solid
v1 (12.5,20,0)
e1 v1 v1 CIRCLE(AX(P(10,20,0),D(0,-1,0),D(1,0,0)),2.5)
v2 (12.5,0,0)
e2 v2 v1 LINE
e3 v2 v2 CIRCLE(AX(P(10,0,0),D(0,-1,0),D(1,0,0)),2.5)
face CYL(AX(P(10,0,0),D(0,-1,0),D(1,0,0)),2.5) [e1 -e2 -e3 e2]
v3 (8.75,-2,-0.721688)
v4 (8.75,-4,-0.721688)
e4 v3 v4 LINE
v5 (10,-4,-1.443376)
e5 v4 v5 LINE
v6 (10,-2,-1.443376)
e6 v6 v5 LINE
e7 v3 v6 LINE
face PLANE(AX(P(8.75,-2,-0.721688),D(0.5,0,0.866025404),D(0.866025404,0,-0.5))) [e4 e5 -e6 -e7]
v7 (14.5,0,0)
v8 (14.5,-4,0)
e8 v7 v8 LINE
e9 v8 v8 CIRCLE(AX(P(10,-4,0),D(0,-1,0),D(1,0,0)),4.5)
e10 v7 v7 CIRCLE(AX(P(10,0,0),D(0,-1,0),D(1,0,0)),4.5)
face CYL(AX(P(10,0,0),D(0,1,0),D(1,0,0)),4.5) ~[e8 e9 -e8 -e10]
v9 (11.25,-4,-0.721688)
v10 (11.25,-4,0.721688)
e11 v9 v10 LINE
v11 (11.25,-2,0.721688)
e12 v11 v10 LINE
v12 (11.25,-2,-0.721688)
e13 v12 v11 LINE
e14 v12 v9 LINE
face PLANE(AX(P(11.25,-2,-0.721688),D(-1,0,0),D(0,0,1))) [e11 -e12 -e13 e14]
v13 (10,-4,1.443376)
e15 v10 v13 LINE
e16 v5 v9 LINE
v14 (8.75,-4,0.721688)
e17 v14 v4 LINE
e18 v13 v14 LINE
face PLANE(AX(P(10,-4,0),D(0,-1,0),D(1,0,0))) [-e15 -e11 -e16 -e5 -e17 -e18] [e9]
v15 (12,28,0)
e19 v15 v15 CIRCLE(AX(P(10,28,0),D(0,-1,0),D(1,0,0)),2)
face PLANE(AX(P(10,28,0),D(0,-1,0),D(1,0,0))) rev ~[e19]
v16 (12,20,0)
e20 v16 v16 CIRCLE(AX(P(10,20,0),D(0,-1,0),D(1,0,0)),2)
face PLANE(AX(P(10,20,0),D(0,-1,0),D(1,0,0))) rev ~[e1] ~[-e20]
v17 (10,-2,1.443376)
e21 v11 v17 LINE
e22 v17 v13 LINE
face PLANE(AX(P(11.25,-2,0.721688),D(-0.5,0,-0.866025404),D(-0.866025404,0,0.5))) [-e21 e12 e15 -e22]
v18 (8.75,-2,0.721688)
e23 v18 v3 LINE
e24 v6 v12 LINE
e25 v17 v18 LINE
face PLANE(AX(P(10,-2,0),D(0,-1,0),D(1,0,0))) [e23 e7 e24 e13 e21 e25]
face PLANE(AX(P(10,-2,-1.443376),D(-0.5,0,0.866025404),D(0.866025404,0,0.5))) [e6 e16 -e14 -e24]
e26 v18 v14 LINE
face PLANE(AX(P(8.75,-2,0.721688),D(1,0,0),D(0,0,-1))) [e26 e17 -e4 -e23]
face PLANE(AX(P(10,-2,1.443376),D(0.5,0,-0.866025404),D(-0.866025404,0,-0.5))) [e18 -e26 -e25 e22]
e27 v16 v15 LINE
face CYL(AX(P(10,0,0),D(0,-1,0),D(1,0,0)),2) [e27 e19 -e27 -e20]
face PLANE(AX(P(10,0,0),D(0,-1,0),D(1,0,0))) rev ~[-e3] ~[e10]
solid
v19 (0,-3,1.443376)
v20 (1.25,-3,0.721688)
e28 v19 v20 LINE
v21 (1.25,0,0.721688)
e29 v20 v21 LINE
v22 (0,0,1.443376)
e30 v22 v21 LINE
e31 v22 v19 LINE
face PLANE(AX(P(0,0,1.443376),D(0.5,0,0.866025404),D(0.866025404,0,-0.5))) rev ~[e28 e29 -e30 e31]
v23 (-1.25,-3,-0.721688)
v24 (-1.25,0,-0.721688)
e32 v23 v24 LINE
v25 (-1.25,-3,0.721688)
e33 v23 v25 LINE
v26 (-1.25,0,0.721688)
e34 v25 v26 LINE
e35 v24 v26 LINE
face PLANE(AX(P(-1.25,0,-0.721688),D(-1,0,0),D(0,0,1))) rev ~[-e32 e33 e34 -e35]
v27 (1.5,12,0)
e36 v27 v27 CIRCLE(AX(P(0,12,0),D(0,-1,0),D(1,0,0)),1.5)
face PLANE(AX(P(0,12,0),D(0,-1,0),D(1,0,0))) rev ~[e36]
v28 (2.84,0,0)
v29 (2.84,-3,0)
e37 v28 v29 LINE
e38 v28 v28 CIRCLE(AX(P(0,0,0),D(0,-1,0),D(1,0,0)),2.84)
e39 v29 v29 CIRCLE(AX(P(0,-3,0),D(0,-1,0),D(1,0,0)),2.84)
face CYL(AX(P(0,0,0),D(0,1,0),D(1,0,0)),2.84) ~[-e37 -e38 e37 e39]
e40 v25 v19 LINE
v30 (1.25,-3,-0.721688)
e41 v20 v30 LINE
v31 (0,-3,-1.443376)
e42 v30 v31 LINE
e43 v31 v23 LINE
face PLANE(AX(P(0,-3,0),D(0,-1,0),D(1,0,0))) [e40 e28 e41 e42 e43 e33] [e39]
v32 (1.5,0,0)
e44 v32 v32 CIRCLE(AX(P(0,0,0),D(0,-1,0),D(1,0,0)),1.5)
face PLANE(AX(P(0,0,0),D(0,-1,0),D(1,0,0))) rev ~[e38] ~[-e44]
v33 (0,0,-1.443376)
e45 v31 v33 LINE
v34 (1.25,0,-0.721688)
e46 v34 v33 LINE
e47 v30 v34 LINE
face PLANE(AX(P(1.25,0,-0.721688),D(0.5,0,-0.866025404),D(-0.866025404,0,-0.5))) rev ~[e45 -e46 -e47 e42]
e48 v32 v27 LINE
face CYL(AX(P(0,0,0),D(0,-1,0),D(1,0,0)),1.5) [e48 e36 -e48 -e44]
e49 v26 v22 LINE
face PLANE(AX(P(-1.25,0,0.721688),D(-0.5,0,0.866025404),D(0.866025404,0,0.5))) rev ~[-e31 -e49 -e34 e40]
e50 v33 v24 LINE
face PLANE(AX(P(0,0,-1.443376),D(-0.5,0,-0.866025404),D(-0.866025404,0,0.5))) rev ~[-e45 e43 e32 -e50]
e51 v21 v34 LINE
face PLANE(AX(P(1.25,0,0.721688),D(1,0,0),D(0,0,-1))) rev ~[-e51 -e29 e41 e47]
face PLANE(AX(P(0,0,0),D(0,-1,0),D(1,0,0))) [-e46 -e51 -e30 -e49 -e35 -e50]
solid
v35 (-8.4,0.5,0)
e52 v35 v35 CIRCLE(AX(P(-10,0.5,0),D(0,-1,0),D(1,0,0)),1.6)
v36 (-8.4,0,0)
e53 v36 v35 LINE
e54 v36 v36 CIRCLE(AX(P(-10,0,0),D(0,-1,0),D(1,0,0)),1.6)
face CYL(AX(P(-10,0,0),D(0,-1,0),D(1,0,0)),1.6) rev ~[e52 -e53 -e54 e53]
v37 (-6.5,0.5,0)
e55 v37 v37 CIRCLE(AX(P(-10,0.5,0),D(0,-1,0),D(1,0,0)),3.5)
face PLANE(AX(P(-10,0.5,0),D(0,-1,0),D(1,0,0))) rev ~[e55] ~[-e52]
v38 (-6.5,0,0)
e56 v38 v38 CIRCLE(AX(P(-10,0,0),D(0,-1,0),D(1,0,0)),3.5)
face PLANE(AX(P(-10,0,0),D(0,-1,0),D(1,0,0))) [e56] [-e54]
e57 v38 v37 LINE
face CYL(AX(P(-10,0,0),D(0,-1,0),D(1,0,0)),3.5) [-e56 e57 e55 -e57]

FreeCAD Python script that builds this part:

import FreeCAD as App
import Part
import Sketcher

V = App.Vector
Q = App.Units.Quantity

doc = App.newDocument("Part")
body = doc.addObject("PartDesign::Body", "Body")

# Sketch on XZ plane
sketch1 = body.newObject("Sketcher::SketchObject", "Sketch")
sketch1.AttachmentSupport = (doc.getObject("XZ_Plane"), [""])
sketch1.MapMode = "FlatFace"
sketch1.addGeometry(Part.Circle(V(0, 0, 0), V(0, 0, 1), 1.5), False)
sketch1.addConstraint(Sketcher.Constraint("Coincident", 0, 3, -1, 1))
sketch1.addConstraint(Sketcher.Constraint("Diameter", 0, 3.0))
pad1 = body.newObject("PartDesign::Pad", "Pad")
pad1.Profile = sketch1
pad1.Length = 12
pad1.Reversed = True

# Sketch on XZ plane
sketch2 = body.newObject("Sketcher::SketchObject", "Sketch001")
sketch2.AttachmentSupport = (doc.getObject("XZ_Plane"), [""])
sketch2.MapMode = "FlatFace"
sketch2.addGeometry(Part.Circle(V(0, 0, 0), V(0, 0, 1), 2.84), False)
sketch2.addGeometry(Part.LineSegment(V(-1.25, 0.721688, 0), V(0, 1.443376, 0)), False)
sketch2.addGeometry(Part.LineSegment(V(0, 1.443376, 0), V(1.25, 0.721688, 0)), False)
sketch2.addGeometry(Part.LineSegment(V(1.25, 0.721688, 0), V(1.25, -0.721688, 0)), False)
sketch2.addGeometry(Part.LineSegment(V(1.25, -0.721688, 0), V(0, -1.443376, 0)), False)
sketch2.addGeometry(Part.LineSegment(V(0, -1.443376, 0), V(-1.25, -0.721688, 0)), False)
sketch2.addGeometry(Part.LineSegment(V(-1.25, -0.721688, 0), V(-1.25, 0.721688, 0)), False)
sketch2.addConstraint(Sketcher.Constraint("Coincident", 1, 2, 2, 1))
sketch2.addConstraint(Sketcher.Constraint("Coincident", 2, 2, 3, 1))
sketch2.addConstraint(Sketcher.Constraint("Coincident", 3, 2, 4, 1))
sketch2.addConstraint(Sketcher.Constraint("Coincident", 4, 2, 5, 1))
sketch2.addConstraint(Sketcher.Constraint("Coincident", 5, 2, 6, 1))
sketch2.addConstraint(Sketcher.Constraint("Coincident", 6, 2, 1, 1))
sketch2.addConstraint(Sketcher.Constraint("Vertical", 3))
sketch2.addConstraint(Sketcher.Constraint("Vertical", 6))
sketch2.addConstraint(Sketcher.Constraint("Coincident", 0, 3, -1, 1))
sketch2.addConstraint(Sketcher.Constraint("Symmetric", 1, 2, 4, 2, -1, 1))
sketch2.addConstraint(Sketcher.Constraint("Symmetric", 2, 2, 5, 2, -1, 1))
sketch2.addConstraint(Sketcher.Constraint("PointOnObject", 1, 2, -2))
sketch2.addConstraint(Sketcher.Constraint("Parallel", 1, 4))
sketch2.addConstraint(Sketcher.Constraint("Horizontal", 3, 2, 5, 2))
sketch2.addConstraint(Sketcher.Constraint("Diameter", 0, 5.68))
sketch2.addConstraint(Sketcher.Constraint("Angle", 1, Q("30 deg")))
sketch2.addConstraint(Sketcher.Constraint("DistanceX", 5, 2, 3, 2, 2.5))
sketch2.addConstraint(Sketcher.Constraint("DistanceY", 3, 2, 3, 1, 1.443376))
pad2 = body.newObject("PartDesign::Pad", "Pad001")
pad2.Profile = sketch2
pad2.Length = 3

# Sketch on XZ plane
sketch3 = body.newObject("Sketcher::SketchObject", "Sketch002")
sketch3.AttachmentSupport = (doc.getObject("XZ_Plane"), [""])
sketch3.MapMode = "FlatFace"
sketch3.AttachmentOffset = App.Placement(V(0, 0, 1.9), App.Rotation())
sketch3.addGeometry(Part.LineSegment(V(1.25, -0.721688, 0), V(1.25, 0.721688, 0)), False)
sketch3.addGeometry(Part.LineSegment(V(1.25, 0.721688, 0), V(0, 1.443376, 0)), False)
sketch3.addGeometry(Part.LineSegment(V(0, 1.443376, 0), V(-1.25, 0.721688, 0)), False)
sketch3.addGeometry(Part.LineSegment(V(-1.25, 0.721688, 0), V(-1.25, -0.721688, 0)), False)
sketch3.addGeometry(Part.LineSegment(V(-1.25, -0.721688, 0), V(0, -1.443376, 0)), False)
sketch3.addGeometry(Part.LineSegment(V(0, -1.443376, 0), V(1.25, -0.721688, 0)), False)
sketch3.addConstraint(Sketcher.Constraint("Coincident", 0, 2, 1, 1))
sketch3.addConstraint(Sketcher.Constraint("Coincident", 1, 2, 2, 1))
sketch3.addConstraint(Sketcher.Constraint("Coincident", 2, 2, 3, 1))
sketch3.addConstraint(Sketcher.Constraint("Coincident", 3, 2, 4, 1))
sketch3.addConstraint(Sketcher.Constraint("Coincident", 4, 2, 5, 1))
sketch3.addConstraint(Sketcher.Constraint("Coincident", 5, 2, 0, 1))
sketch3.addConstraint(Sketcher.Constraint("Vertical", 0))
sketch3.addConstraint(Sketcher.Constraint("Vertical", 3))
sketch3.addConstraint(Sketcher.Constraint("Symmetric", 0, 2, 3, 2, -1, 1))
sketch3.addConstraint(Sketcher.Constraint("Symmetric", 1, 2, 4, 2, -1, 1))
sketch3.addConstraint(Sketcher.Constraint("PointOnObject", 1, 2, -2))
sketch3.addConstraint(Sketcher.Constraint("Parallel", 2, 5))
sketch3.addConstraint(Sketcher.Constraint("Horizontal", 0, 2, 2, 2))
sketch3.addConstraint(Sketcher.Constraint("Angle", 1, Q("150 deg")))
sketch3.addConstraint(Sketcher.Constraint("DistanceX", 2, 2, 0, 2, 2.5))
sketch3.addConstraint(Sketcher.Constraint("DistanceY", 0, 1, 0, 2, 1.443376))
pocket1 = body.newObject("PartDesign::Pocket", "Pocket")
pocket1.Profile = sketch3
pocket1.Length = 23.1
pocket1.Reversed = True
body2 = doc.addObject("PartDesign::Body", "Body001")

# Sketch on XZ plane
sketch4 = body2.newObject("Sketcher::SketchObject", "Sketch003")
sketch4.AttachmentSupport = (doc.getObject("XZ_Plane001"), [""])
sketch4.MapMode = "FlatFace"
sketch4.addGeometry(Part.Circle(V(10, 0, 0), V(0, 0, 1), 4.5), False)
sketch4.addConstraint(Sketcher.Constraint("PointOnObject", 0, 3, -1))
sketch4.addConstraint(Sketcher.Constraint("Diameter", 0, 9.0))
sketch4.addConstraint(Sketcher.Constraint("DistanceX", -1, 1, 0, 3, 10.0))
pad3 = body2.newObject("PartDesign::Pad", "Pad002")
pad3.Profile = sketch4
pad3.Length = 4

# Sketch on XZ plane
sketch5 = body2.newObject("Sketcher::SketchObject", "Sketch004")
sketch5.AttachmentSupport = (doc.getObject("XZ_Plane001"), [""])
sketch5.MapMode = "FlatFace"
sketch5.addGeometry(Part.Circle(V(10, 0, 0), V(0, 0, 1), 2.5), False)
sketch5.addConstraint(Sketcher.Constraint("PointOnObject", 0, 3, -1))
sketch5.addConstraint(Sketcher.Constraint("Diameter", 0, 5.0))
sketch5.addConstraint(Sketcher.Constraint("DistanceX", -1, 1, 0, 3, 10.0))
pad4 = body2.newObject("PartDesign::Pad", "Pad003")
pad4.Profile = sketch5
pad4.Length = 20
pad4.Reversed = True

# Sketch on XZ plane
sketch6 = body2.newObject("Sketcher::SketchObject", "Sketch005")
sketch6.AttachmentSupport = (doc.getObject("XZ_Plane001"), [""])
sketch6.MapMode = "FlatFace"
sketch6.addGeometry(Part.Circle(V(10, 0, 0), V(0, 0, 1), 2), False)
sketch6.addConstraint(Sketcher.Constraint("PointOnObject", 0, 3, -1))
sketch6.addConstraint(Sketcher.Constraint("Diameter", 0, 4.0))
sketch6.addConstraint(Sketcher.Constraint("DistanceX", -1, 1, 0, 3, 10.0))
pad5 = body2.newObject("PartDesign::Pad", "Pad004")
pad5.Profile = sketch6
pad5.Length = 28
pad5.Reversed = True

# Sketch on XZ plane
sketch7 = body2.newObject("Sketcher::SketchObject", "Sketch006")
sketch7.AttachmentSupport = (doc.getObject("XZ_Plane001"), [""])
sketch7.MapMode = "FlatFace"
sketch7.AttachmentOffset = App.Placement(V(0, 0, 2), App.Rotation())
sketch7.addGeometry(Part.LineSegment(V(11.25, -0.721688, 0), V(11.25, 0.721688, 0)), False)
sketch7.addGeometry(Part.LineSegment(V(11.25, 0.721688, 0), V(10, 1.443376, 0)), False)
sketch7.addGeometry(Part.LineSegment(V(10, 1.443376, 0), V(8.75, 0.721688, 0)), False)
sketch7.addGeometry(Part.LineSegment(V(8.75, 0.721688, 0), V(8.75, -0.721688, 0)), False)
sketch7.addGeometry(Part.LineSegment(V(8.75, -0.721688, 0), V(10, -1.443376, 0)), False)
sketch7.addGeometry(Part.LineSegment(V(10, -1.443376, 0), V(11.25, -0.721688, 0)), False)
sketch7.addConstraint(Sketcher.Constraint("Coincident", 0, 2, 1, 1))
sketch7.addConstraint(Sketcher.Constraint("Coincident", 1, 2, 2, 1))
sketch7.addConstraint(Sketcher.Constraint("Coincident", 2, 2, 3, 1))
sketch7.addConstraint(Sketcher.Constraint("Coincident", 3, 2, 4, 1))
sketch7.addConstraint(Sketcher.Constraint("Coincident", 4, 2, 5, 1))
sketch7.addConstraint(Sketcher.Constraint("Coincident", 5, 2, 0, 1))
sketch7.addConstraint(Sketcher.Constraint("Vertical", 0))
sketch7.addConstraint(Sketcher.Constraint("Vertical", 3))
sketch7.addConstraint(Sketcher.Constraint("Symmetric", 1, 2, 4, 2, -1))
sketch7.addConstraint(Sketcher.Constraint("Parallel", 1, 4))
sketch7.addConstraint(Sketcher.Constraint("Parallel", 2, 5))
sketch7.addConstraint(Sketcher.Constraint("Horizontal", 0, 2, 2, 2))
sketch7.addConstraint(Sketcher.Constraint("Horizontal", 3, 2, 5, 2))
sketch7.addConstraint(Sketcher.Constraint("Angle", 1, Q("150 deg")))
sketch7.addConstraint(Sketcher.Constraint("DistanceX", -1, 1, 1, 2, 10.0))
sketch7.addConstraint(Sketcher.Constraint("DistanceX", 2, 2, 0, 2, 2.5))
sketch7.addConstraint(Sketcher.Constraint("DistanceY", 0, 1, 0, 2, 1.443376))
pocket2 = body2.newObject("PartDesign::Pocket", "Pocket001")
pocket2.Profile = sketch7
pocket2.Length = 2
pocket2.Reversed = True
body3 = doc.addObject("PartDesign::Body", "Body002")

# Sketch on XZ plane
sketch8 = body3.newObject("Sketcher::SketchObject", "Sketch007")
sketch8.AttachmentSupport = (doc.getObject("XZ_Plane002"), [""])
sketch8.MapMode = "FlatFace"
sketch8.addGeometry(Part.Circle(V(-10, 0, 0), V(0, 0, 1), 3.5), False)
sketch8.addGeometry(Part.Circle(V(-10, 0, 0), V(0, 0, 1), 1.6), False)
sketch8.addConstraint(Sketcher.Constraint("Coincident", 1, 3, 0, 3))
sketch8.addConstraint(Sketcher.Constraint("PointOnObject", 0, 3, -1))
sketch8.addConstraint(Sketcher.Constraint("Diameter", 0, 7.0))
sketch8.addConstraint(Sketcher.Constraint("Diameter", 1, 3.2))
sketch8.addConstraint(Sketcher.Constraint("DistanceX", 0, 3, -1, 1, 10.0))
pad6 = body3.newObject("PartDesign::Pad", "Pad005")
pad6.Profile = sketch8
pad6.Length = 0.5
pad6.Reversed = True

doc.recompute()
